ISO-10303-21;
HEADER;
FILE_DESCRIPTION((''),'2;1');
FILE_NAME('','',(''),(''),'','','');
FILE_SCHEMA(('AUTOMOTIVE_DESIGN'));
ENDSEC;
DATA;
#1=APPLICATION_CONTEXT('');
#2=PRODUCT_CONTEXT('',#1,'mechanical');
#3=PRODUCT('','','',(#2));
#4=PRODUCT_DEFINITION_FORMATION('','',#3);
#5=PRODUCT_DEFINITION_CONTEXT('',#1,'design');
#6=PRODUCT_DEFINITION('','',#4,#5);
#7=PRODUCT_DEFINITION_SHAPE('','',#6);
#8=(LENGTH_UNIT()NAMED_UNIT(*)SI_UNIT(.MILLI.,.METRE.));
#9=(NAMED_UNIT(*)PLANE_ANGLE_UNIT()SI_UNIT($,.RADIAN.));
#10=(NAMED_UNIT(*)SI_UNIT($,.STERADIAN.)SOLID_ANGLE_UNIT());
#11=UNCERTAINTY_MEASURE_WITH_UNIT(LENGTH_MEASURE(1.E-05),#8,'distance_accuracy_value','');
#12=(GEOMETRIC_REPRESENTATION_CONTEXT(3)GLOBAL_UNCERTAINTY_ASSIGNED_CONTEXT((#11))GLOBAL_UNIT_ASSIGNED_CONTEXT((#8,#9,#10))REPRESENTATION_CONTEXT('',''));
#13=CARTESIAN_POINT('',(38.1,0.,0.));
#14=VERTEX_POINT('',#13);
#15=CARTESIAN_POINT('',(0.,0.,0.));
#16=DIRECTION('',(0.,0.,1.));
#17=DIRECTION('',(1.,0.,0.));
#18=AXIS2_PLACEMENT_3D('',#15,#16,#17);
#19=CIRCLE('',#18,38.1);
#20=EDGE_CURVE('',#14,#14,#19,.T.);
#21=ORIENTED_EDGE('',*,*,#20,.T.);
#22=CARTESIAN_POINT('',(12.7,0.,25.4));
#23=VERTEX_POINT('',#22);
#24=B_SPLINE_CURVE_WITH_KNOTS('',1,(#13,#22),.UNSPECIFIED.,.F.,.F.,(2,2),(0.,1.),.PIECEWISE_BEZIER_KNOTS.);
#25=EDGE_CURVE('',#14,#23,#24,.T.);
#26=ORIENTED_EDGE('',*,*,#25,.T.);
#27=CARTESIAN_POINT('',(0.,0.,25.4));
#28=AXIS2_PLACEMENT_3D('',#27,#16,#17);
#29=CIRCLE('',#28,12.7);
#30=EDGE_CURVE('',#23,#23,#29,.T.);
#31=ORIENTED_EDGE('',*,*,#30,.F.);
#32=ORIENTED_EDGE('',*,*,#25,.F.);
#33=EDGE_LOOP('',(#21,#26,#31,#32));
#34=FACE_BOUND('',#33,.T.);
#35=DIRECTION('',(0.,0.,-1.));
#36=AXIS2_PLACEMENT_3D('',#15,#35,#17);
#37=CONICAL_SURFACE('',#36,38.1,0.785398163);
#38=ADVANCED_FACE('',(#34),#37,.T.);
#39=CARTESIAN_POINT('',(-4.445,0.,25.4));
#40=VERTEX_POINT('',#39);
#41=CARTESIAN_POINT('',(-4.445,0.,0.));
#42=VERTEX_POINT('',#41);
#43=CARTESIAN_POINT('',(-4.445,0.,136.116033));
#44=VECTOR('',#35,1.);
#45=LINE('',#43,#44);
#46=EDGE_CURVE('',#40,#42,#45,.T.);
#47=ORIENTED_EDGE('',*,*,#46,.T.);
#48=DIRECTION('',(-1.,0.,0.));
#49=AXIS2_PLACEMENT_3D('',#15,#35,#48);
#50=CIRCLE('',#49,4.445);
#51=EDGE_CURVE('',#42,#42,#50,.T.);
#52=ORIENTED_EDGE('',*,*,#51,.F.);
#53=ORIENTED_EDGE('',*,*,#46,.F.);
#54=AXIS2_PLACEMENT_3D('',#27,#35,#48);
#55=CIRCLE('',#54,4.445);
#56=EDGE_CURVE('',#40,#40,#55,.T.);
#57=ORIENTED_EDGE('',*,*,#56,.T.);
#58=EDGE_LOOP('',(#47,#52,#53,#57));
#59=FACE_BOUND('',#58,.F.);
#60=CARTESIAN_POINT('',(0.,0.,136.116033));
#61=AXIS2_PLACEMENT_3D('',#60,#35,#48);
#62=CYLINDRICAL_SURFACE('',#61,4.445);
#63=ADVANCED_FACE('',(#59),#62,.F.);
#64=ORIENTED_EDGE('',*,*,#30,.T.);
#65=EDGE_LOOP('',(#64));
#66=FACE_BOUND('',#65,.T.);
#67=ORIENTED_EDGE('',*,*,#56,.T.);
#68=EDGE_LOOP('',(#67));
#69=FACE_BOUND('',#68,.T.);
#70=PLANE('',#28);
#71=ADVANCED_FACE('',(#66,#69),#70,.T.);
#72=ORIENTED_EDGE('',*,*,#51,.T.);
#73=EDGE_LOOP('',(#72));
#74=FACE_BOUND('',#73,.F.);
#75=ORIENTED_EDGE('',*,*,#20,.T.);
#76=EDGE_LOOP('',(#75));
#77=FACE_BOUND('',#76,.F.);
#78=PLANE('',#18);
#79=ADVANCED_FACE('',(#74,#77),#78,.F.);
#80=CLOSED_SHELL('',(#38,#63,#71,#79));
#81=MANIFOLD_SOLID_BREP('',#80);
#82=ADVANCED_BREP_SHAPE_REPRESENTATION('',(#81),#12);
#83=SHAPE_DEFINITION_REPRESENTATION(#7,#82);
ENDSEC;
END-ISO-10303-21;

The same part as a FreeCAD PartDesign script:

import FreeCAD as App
import Part
import Sketcher

V = App.Vector
Q = App.Units.Quantity

doc = App.newDocument("Part")
params = doc.addObject("Spreadsheet::Sheet", "Params")
for row, (alias, value) in enumerate([
    ("sketch1_diameter", "3 in"),
    ("sketch2_diameter", "1 in"),
    ("sketch3_diameter", "0.35 in"),
    ("hole_diameter", "0.35 in"),
], start=1):
    params.set(f"A{row}", alias)
    params.set(f"B{row}", "=" + value)
    params.setAlias(f"B{row}", alias)

body = doc.addObject("PartDesign::Body", "Body")

# Sketch on XY plane
sketch1 = doc.addObject("Sketcher::SketchObject", "Sketch")
body.addObject(sketch1)
sketch1.AttachmentSupport = (doc.XY_Plane, [""])
sketch1.MapMode = "FlatFace"
sketch1.addGeometry(Part.Circle(V(0, 0, 0), V(0, 0, 1), 38), False)
sketch1.addConstraint(Sketcher.Constraint("Coincident", 0, 3, -1, 1))
sketch1.addConstraint(Sketcher.Constraint("Diameter", 0, Q("3 in")))
sketch1.setExpression("Constraints[1]", "Params.sketch1_diameter")

# Sketch on XY plane
sketch2 = doc.addObject("Sketcher::SketchObject", "Sketch001")
body.addObject(sketch2)
sketch2.AttachmentSupport = (doc.XY_Plane, [""])
sketch2.MapMode = "FlatFace"
sketch2.AttachmentOffset = App.Placement(V(0, 0, 1 * 25.4), App.Rotation())
sketch2.addGeometry(Part.Circle(V(0, 0, 0), V(0, 0, 1), 13), False)
sketch2.addConstraint(Sketcher.Constraint("Coincident", 0, 3, -1, 1))
sketch2.addConstraint(Sketcher.Constraint("Diameter", 0, Q("1 in")))
sketch2.setExpression("Constraints[1]", "Params.sketch2_diameter")

additiveloft = doc.addObject("PartDesign::AdditiveLoft", "AdditiveLoft")
body.addObject(additiveloft)
additiveloft.Profile = sketch1
additiveloft.Sections = [sketch2]

# Sketch on XY plane
sketch3 = doc.addObject("Sketcher::SketchObject", "Sketch002")
body.addObject(sketch3)
sketch3.AttachmentSupport = (doc.XY_Plane, [""])
sketch3.MapMode = "FlatFace"
sketch3.AttachmentOffset = App.Placement(V(0, 0, 1 * 25.4), App.Rotation())
sketch3.addGeometry(Part.Circle(V(0, 0, 0), V(0, 0, 1), 4.4), False)
sketch3.addConstraint(Sketcher.Constraint("Coincident", 0, 3, -1, 1))
sketch3.addConstraint(Sketcher.Constraint("Diameter", 0, Q("0.35 in")))
sketch3.setExpression("Constraints[1]", "Params.sketch3_diameter")
doc.recompute()
hole = doc.addObject("PartDesign::Hole", "Hole")
body.addObject(hole)
hole.Profile = sketch3
hole.ThreadType = "None"
hole.setExpression("Diameter", "Params.hole_diameter")
hole.DepthType = "ThroughAll"

doc.recompute()
